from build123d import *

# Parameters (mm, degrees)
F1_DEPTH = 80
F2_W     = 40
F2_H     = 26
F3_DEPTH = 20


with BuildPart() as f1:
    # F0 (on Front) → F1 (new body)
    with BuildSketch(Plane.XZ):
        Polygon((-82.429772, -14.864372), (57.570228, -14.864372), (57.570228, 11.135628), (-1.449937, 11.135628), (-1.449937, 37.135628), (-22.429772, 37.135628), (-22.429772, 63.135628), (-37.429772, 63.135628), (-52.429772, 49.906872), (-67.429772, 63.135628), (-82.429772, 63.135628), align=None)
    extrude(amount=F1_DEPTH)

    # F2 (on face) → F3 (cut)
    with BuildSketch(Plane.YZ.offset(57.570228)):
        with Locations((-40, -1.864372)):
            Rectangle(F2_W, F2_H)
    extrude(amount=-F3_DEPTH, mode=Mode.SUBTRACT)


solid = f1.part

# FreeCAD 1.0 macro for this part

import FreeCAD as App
import Part
import Sketcher

V = App.Vector
Q = App.Units.Quantity


def add_polygon(sketch, points):
    """Adds a closed chain of lines whose ends are joined by coincident constraints."""
    first, n = sketch.GeometryCount, len(points)
    for a, b in zip(points, points[1:] + points[:1]):
        sketch.addGeometry(Part.LineSegment(App.Vector(*a, 0), App.Vector(*b, 0)), False)
    for i in range(n):
        sketch.addConstraint(Sketcher.Constraint("Coincident", first + i, 2, first + (i + 1) % n, 1))

doc = App.newDocument("Part")
body = doc.addObject("PartDesign::Body", "Body")

sketch1 = doc.addObject("Sketcher::SketchObject", "Sketch")
body.addObject(sketch1)
sketch1.AttachmentSupport = (doc.XZ_Plane, [""])
sketch1.MapMode = "FlatFace"
add_polygon(sketch1, [(-82, -15), (58, -15), (58, 11), (-1, 11), (-1, 37), (-22, 37), (-22, 63), (-37, 63), (-52, 50), (-67, 63), (-82, 63)])
sketch1.addConstraint([
    Sketcher.Constraint("Horizontal", 0),
    Sketcher.Constraint("Vertical", 1),
    Sketcher.Constraint("Horizontal", 2),
    Sketcher.Constraint("Vertical", 3),
    Sketcher.Constraint("Horizontal", 4),
    Sketcher.Constraint("Vertical", 5),
    Sketcher.Constraint("Horizontal", 6),
    Sketcher.Constraint("Horizontal", 9),
    Sketcher.Constraint("Vertical", 10),
    Sketcher.Constraint("Horizontal", 6, 2, 8, 2),
    Sketcher.Constraint("Equal", 6, 9),
    Sketcher.Constraint("Equal", 1, 3),
    Sketcher.Constraint("Equal", 3, 5),
    Sketcher.Constraint("Equal", 7, 8),
    Sketcher.Constraint("DistanceX", 0, 1, 0, 2, Q("140 mm")),
    Sketcher.Constraint("DistanceX", 6, 2, 6, 1, Q("15 mm")),
    Sketcher.Constraint("DistanceY", 1, 1, 1, 2, Q("26 mm")),
    Sketcher.Constraint("Distance", 7, Q("20 mm")),
    Sketcher.Constraint("DistanceX", 4, 2, 1, 2, Q("80 mm")),
    Sketcher.Constraint("DistanceX", 2, 2, 2, 1, Q("59.020165 mm")),
    Sketcher.Constraint("DistanceX", 4, 2, -1, 1, Q("22.429772 mm")),
    Sketcher.Constraint("DistanceY", 0, 2, -1, 1, Q("14.864372 mm")),
])
pad1 = doc.addObject("PartDesign::Pad", "Pad")
body.addObject(pad1)
pad1.Profile = sketch1
pad1.Length = 80

sketch2 = doc.addObject("Sketcher::SketchObject", "Sketch001")
body.addObject(sketch2)
sketch2.AttachmentSupport = (doc.YZ_Plane, [""])
sketch2.MapMode = "FlatFace"
sketch2.AttachmentOffset = App.Placement(V(0, 0, 57.570228), App.Rotation())
add_polygon(sketch2, [(-60, 11), (-60, -15), (-20, -15), (-20, 11)])
sketch2.addConstraint([
    Sketcher.Constraint("Vertical", 0),
    Sketcher.Constraint("Horizontal", 1),
    Sketcher.Constraint("Vertical", 2),
    Sketcher.Constraint("Horizontal", 3),
    Sketcher.Constraint("DistanceX", 1, 1, 1, 2, Q("40 mm")),
    Sketcher.Constraint("DistanceY", 0, 2, 0, 1, Q("26 mm")),
    Sketcher.Constraint("DistanceX", 0, 2, -1, 1, Q("60 mm")),
    Sketcher.Constraint("DistanceY", 0, 2, -1, 1, Q("14.864372 mm")),
])
pocket1 = doc.addObject("PartDesign::Pocket", "Pocket")
body.addObject(pocket1)
pocket1.Profile = sketch2
pocket1.Length = 20

doc.recompute()
